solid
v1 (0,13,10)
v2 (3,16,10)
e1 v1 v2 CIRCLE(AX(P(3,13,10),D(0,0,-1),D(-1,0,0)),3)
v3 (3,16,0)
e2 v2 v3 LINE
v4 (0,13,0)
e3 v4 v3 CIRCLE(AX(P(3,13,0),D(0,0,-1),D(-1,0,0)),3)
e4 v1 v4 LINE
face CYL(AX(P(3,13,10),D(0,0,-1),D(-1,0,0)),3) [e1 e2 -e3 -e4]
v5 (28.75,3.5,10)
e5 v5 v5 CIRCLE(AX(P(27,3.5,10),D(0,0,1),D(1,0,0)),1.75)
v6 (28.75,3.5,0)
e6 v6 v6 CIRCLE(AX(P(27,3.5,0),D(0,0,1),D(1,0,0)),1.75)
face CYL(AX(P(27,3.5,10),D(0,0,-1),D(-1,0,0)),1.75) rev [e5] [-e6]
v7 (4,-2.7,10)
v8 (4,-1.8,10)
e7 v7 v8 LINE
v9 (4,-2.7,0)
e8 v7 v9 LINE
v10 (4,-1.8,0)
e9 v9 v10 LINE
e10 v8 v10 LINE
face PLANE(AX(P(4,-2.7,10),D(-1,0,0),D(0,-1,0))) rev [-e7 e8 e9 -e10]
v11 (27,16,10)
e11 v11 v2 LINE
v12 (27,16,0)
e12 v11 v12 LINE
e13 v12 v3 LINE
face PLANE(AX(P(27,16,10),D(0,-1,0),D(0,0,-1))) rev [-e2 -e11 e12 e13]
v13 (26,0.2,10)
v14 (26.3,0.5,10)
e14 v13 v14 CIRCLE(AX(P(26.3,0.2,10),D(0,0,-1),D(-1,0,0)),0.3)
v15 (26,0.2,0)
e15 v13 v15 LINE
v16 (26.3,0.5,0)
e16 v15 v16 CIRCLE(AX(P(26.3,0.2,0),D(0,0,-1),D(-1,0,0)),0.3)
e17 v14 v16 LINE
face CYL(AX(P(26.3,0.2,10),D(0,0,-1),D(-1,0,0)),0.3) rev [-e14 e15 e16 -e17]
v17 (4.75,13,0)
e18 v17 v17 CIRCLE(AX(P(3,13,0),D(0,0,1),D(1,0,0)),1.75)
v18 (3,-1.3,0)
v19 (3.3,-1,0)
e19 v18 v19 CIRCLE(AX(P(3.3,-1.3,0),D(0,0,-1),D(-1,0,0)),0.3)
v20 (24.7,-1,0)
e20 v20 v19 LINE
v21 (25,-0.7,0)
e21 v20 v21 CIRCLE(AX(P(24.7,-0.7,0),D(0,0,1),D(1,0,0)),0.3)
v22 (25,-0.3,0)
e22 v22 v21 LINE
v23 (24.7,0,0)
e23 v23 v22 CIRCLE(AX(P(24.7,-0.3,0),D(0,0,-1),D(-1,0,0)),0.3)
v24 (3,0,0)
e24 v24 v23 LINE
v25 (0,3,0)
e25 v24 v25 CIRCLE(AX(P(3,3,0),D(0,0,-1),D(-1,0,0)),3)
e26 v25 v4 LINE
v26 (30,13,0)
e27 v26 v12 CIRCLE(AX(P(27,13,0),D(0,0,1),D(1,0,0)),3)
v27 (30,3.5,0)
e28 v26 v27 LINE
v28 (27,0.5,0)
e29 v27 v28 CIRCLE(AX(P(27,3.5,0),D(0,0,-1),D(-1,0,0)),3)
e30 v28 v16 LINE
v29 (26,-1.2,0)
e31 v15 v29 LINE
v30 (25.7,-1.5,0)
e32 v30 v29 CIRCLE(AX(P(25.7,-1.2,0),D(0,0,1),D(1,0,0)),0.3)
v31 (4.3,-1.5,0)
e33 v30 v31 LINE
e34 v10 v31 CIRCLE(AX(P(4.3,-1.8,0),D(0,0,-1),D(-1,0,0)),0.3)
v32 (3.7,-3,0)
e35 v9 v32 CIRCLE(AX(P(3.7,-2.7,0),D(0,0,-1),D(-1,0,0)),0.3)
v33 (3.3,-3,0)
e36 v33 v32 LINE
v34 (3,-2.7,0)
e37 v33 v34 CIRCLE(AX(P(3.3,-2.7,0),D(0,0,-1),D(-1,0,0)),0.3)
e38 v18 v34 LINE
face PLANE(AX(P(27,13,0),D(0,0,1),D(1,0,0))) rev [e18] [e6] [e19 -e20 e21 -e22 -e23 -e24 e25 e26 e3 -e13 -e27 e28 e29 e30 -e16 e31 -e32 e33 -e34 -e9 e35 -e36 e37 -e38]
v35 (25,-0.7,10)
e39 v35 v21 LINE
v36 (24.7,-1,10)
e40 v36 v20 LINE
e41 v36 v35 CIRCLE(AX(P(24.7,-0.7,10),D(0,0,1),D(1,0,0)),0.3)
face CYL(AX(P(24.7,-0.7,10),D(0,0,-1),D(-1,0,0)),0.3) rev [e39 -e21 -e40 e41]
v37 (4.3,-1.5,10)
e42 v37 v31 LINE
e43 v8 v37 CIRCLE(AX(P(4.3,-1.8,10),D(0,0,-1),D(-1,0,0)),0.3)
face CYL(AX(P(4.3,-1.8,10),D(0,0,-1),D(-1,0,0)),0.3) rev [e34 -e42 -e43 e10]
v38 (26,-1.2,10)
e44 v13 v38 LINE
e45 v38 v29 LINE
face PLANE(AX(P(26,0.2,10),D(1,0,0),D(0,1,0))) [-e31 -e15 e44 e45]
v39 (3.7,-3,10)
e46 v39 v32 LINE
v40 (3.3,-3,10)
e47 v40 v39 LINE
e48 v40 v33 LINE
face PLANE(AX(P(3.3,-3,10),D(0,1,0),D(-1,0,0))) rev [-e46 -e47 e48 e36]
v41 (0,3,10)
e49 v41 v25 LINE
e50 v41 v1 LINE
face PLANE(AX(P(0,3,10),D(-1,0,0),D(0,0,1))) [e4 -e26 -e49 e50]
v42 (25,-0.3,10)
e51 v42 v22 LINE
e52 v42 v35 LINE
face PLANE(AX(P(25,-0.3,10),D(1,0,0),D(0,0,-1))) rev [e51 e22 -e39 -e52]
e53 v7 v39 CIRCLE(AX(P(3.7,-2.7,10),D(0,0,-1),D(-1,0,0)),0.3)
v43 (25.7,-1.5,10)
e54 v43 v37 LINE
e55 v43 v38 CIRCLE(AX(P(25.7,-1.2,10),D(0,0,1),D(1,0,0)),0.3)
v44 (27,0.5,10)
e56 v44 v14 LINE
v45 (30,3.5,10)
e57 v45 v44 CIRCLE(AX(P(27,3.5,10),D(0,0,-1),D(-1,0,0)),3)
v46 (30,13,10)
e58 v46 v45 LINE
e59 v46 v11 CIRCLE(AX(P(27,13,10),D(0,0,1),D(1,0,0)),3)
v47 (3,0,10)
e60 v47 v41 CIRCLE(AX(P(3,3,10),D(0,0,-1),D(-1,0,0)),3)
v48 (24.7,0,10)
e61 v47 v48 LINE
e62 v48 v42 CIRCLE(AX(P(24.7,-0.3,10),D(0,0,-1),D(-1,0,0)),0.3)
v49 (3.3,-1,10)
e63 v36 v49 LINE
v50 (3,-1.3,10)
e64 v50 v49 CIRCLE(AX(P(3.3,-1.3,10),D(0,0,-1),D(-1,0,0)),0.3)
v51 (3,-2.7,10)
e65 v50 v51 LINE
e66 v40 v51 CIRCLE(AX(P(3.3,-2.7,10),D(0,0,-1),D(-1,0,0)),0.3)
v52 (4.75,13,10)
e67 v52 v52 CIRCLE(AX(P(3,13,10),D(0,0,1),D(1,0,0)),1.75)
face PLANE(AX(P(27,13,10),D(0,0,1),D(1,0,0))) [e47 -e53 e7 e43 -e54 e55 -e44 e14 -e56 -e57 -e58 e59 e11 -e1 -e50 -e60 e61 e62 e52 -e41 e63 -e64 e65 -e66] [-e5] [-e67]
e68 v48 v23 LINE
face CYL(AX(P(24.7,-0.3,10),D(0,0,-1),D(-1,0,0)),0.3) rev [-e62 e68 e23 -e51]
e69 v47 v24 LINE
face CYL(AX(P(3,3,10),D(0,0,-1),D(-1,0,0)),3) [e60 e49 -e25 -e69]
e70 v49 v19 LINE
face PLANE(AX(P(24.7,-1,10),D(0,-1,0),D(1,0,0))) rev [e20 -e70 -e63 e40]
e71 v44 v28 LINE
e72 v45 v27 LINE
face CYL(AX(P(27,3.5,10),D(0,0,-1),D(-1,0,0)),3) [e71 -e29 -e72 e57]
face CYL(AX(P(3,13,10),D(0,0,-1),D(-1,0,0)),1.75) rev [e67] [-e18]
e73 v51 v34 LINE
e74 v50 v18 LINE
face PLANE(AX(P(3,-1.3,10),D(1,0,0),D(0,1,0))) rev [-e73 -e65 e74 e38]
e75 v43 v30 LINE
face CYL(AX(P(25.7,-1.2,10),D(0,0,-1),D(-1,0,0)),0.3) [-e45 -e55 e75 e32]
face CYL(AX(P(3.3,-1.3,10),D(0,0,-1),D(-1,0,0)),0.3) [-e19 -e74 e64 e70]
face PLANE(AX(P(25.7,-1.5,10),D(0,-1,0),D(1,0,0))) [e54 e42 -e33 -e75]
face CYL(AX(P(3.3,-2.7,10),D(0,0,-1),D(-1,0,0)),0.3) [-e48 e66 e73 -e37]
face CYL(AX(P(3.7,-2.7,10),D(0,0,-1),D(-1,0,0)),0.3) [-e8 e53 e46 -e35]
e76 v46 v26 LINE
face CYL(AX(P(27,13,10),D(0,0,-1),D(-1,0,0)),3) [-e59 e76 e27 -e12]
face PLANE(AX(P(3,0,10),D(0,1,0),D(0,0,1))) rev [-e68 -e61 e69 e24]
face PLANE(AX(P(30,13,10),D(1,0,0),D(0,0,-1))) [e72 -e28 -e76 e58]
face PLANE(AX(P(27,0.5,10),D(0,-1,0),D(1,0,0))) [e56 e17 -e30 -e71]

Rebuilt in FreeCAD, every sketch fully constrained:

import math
import FreeCAD as App
import Part
import Sketcher

V = App.Vector
Q = App.Units.Quantity

doc = App.newDocument("Part")
body = doc.addObject("PartDesign::Body", "Body")

sketch1 = body.newObject("Sketcher::SketchObject", "Sketch")
sketch1.AttachmentSupport = (doc.getObject("XY_Plane"), [""])
sketch1.MapMode = "FlatFace"
sketch1.addGeometry([
    Part.LineSegment(V(3, 0, 0), V(24.7, 0, 0)),
    Part.ArcOfCircle(Part.Circle(V(24.7, -0.3, 0), V(0, 0, 1), 0.3), math.radians(0), math.radians(90)),
    Part.LineSegment(V(25, -0.3, 0), V(25, -0.7, 0)),
    Part.ArcOfCircle(Part.Circle(V(24.7, -0.7, 0), V(0, 0, 1), 0.3), math.radians(-90), math.radians(0)),
    Part.LineSegment(V(24.7, -1, 0), V(3.3, -1, 0)),
    Part.ArcOfCircle(Part.Circle(V(3.3, -1.3, 0), V(0, 0, 1), 0.3), math.radians(90), math.radians(180)),
    Part.LineSegment(V(3, -1.3, 0), V(3, -2.7, 0)),
    Part.ArcOfCircle(Part.Circle(V(3.3, -2.7, 0), V(0, 0, 1), 0.3), math.radians(-180), math.radians(-90)),
    Part.LineSegment(V(3.3, -3, 0), V(3.7, -3, 0)),
    Part.ArcOfCircle(Part.Circle(V(3.7, -2.7, 0), V(0, 0, 1), 0.3), math.radians(-90), math.radians(0)),
    Part.LineSegment(V(4, -2.7, 0), V(4, -1.8, 0)),
    Part.ArcOfCircle(Part.Circle(V(4.3, -1.8, 0), V(0, 0, 1), 0.3), math.radians(90), math.radians(180)),
    Part.LineSegment(V(4.3, -1.5, 0), V(25.7, -1.5, 0)),
    Part.ArcOfCircle(Part.Circle(V(25.7, -1.2, 0), V(0, 0, 1), 0.3), math.radians(-90), math.radians(0)),
    Part.LineSegment(V(26, -1.2, 0), V(26, 0.2, 0)),
    Part.ArcOfCircle(Part.Circle(V(26.3, 0.2, 0), V(0, 0, 1), 0.3), math.radians(90), math.radians(180)),
    Part.LineSegment(V(26.3, 0.5, 0), V(27, 0.5, 0)),
    Part.ArcOfCircle(Part.Circle(V(27, 3.5, 0), V(0, 0, 1), 3), math.radians(-90), math.radians(0)),
    Part.LineSegment(V(30, 3.5, 0), V(30, 13, 0)),
    Part.ArcOfCircle(Part.Circle(V(27, 13, 0), V(0, 0, 1), 3), math.radians(0), math.radians(90)),
    Part.LineSegment(V(27, 16, 0), V(3, 16, 0)),
    Part.ArcOfCircle(Part.Circle(V(3, 13, 0), V(0, 0, 1), 3), math.radians(90), math.radians(180)),
    Part.LineSegment(V(0, 13, 0), V(0, 3, 0)),
    Part.ArcOfCircle(Part.Circle(V(3, 3, 0), V(0, 0, 1), 3), math.radians(180), math.radians(270)),
    Part.Circle(V(27, 3.5, 0), V(0, 0, 1), 1.75),
    Part.Circle(V(3, 13, 0), V(0, 0, 1), 1.75),
], False)
sketch1.addConstraint([
    Sketcher.Constraint("Tangent", 0, 2, 1, 2),
    Sketcher.Constraint("Tangent", 1, 1, 2, 1),
    Sketcher.Constraint("Tangent", 2, 2, 3, 2),
    Sketcher.Constraint("Tangent", 3, 1, 4, 1),
    Sketcher.Constraint("Tangent", 4, 2, 5, 1),
    Sketcher.Constraint("Tangent", 5, 2, 6, 1),
    Sketcher.Constraint("Tangent", 6, 2, 7, 1),
    Sketcher.Constraint("Tangent", 7, 2, 8, 1),
    Sketcher.Constraint("Tangent", 8, 2, 9, 1),
    Sketcher.Constraint("Tangent", 9, 2, 10, 1),
    Sketcher.Constraint("Tangent", 10, 2, 11, 2),
    Sketcher.Constraint("Tangent", 11, 1, 12, 1),
    Sketcher.Constraint("Tangent", 12, 2, 13, 1),
    Sketcher.Constraint("Tangent", 13, 2, 14, 1),
    Sketcher.Constraint("Tangent", 14, 2, 15, 2),
    Sketcher.Constraint("Tangent", 15, 1, 16, 1),
    Sketcher.Constraint("Tangent", 16, 2, 17, 1),
    Sketcher.Constraint("Tangent", 17, 2, 18, 1),
    Sketcher.Constraint("Tangent", 18, 2, 19, 1),
    Sketcher.Constraint("Tangent", 19, 2, 20, 1),
    Sketcher.Constraint("Tangent", 20, 2, 21, 1),
    Sketcher.Constraint("Tangent", 21, 2, 22, 1),
    Sketcher.Constraint("Tangent", 22, 2, 23, 1),
    Sketcher.Constraint("Tangent", 23, 2, 0, 1),
    Sketcher.Constraint("Horizontal", 0),
    Sketcher.Constraint("Vertical", 2),
    Sketcher.Constraint("Horizontal", 4),
    Sketcher.Constraint("Vertical", 6),
    Sketcher.Constraint("Horizontal", 8),
    Sketcher.Constraint("Vertical", 10),
    Sketcher.Constraint("Horizontal", 12),
    Sketcher.Constraint("Vertical", 14),
    Sketcher.Constraint("Horizontal", 16),
    Sketcher.Constraint("Vertical", 18),
    Sketcher.Constraint("Horizontal", 20),
    Sketcher.Constraint("Vertical", 22),
    Sketcher.Constraint("Coincident", 24, 3, 17, 3),
    Sketcher.Constraint("Coincident", 25, 3, 21, 3),
    Sketcher.Constraint("Equal", 1, 3),
    Sketcher.Constraint("Equal", 3, 5),
    Sketcher.Constraint("Equal", 5, 7),
    Sketcher.Constraint("Equal", 7, 9),
    Sketcher.Constraint("Equal", 9, 11),
    Sketcher.Constraint("Equal", 11, 13),
    Sketcher.Constraint("Equal", 13, 15),
    Sketcher.Constraint("Equal", 17, 19),
    Sketcher.Constraint("Equal", 19, 21),
    Sketcher.Constraint("Equal", 21, 23),
    Sketcher.Constraint("Equal", 24, 25),
    Sketcher.Constraint("PointOnObject", 0, 2, -1),
    Sketcher.Constraint("PointOnObject", 21, 2, -2),
    Sketcher.Constraint("Vertical", 25, 3, 5, 2),
    Sketcher.Constraint("Equal", 4, 12),
    Sketcher.Constraint("Equal", 8, 2),
    Sketcher.Constraint("Equal", 6, 14),
    Sketcher.Constraint("Radius", 17, Q("3 mm")),
    Sketcher.Constraint("Diameter", 24, Q("3.5 mm")),
    Sketcher.Constraint("Radius", 1, Q("0.3 mm")),
    Sketcher.Constraint("DistanceX", 20, 2, 20, 1, Q("24 mm")),
    Sketcher.Constraint("DistanceY", 22, 2, 22, 1, Q("10 mm")),
    Sketcher.Constraint("DistanceX", 0, 1, 0, 2, Q("21.7 mm")),
    Sketcher.Constraint("DistanceX", 8, 1, 8, 2, Q("0.4 mm")),
    Sketcher.Constraint("DistanceY", 6, 2, 6, 1, Q("1.4 mm")),
    Sketcher.Constraint("DistanceY", 10, 1, 10, 2, Q("0.9 mm")),
])
pad1 = body.newObject("PartDesign::Pad", "Pad")
pad1.Profile = sketch1
pad1.Length = 10

doc.recompute()
